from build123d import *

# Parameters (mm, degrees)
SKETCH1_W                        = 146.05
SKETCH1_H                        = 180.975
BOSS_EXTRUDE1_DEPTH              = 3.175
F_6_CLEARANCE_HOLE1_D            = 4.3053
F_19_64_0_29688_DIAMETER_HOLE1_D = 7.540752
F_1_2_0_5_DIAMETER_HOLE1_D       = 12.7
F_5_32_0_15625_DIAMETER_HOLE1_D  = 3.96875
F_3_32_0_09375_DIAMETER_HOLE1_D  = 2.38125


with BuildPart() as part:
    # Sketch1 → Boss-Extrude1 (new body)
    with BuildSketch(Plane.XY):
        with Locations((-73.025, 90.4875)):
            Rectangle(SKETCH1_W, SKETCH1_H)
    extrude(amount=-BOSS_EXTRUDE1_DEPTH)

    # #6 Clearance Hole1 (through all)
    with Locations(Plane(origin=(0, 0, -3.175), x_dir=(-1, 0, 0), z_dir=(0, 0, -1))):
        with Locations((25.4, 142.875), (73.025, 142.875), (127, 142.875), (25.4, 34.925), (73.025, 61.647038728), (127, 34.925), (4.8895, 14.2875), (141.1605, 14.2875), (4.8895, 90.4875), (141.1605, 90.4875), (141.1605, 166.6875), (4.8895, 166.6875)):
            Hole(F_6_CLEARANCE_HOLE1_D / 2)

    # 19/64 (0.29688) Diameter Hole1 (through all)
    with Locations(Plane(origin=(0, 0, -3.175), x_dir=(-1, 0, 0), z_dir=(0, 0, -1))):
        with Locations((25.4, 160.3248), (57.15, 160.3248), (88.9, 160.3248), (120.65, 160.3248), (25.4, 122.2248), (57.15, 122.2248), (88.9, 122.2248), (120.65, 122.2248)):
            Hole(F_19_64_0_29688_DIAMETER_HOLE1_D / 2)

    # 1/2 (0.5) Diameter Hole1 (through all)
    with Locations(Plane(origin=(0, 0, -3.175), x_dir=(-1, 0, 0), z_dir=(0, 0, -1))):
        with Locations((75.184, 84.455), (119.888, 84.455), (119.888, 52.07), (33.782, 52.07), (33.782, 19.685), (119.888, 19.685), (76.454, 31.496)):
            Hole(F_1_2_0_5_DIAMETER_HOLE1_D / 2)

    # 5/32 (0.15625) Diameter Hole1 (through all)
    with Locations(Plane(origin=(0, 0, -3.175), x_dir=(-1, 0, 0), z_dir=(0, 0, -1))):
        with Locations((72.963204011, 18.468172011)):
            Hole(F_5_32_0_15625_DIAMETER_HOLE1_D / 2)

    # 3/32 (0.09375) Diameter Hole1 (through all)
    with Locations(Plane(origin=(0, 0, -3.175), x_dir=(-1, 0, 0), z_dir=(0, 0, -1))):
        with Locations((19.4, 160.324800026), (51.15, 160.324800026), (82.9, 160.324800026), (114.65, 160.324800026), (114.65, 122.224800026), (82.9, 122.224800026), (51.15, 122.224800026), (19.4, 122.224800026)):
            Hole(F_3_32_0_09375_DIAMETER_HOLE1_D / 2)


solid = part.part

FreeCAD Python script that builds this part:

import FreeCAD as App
import Part
import Sketcher

V = App.Vector
Q = App.Units.Quantity


def add_polygon(sketch, points):
    """Adds a closed chain of lines whose ends are joined by coincident constraints."""
    first, n = sketch.GeometryCount, len(points)
    for a, b in zip(points, points[1:] + points[:1]):
        sketch.addGeometry(Part.LineSegment(App.Vector(*a, 0), App.Vector(*b, 0)), False)
    for i in range(n):
        sketch.addConstraint(Sketcher.Constraint("Coincident", first + i, 2, first + (i + 1) % n, 1))

doc = App.newDocument("Part")
body = doc.addObject("PartDesign::Body", "Body")

# Sketch on XY plane
sketch1 = doc.addObject("Sketcher::SketchObject", "Sketch")
body.addObject(sketch1)
sketch1.AttachmentSupport = (doc.XY_Plane, [""])
sketch1.MapMode = "FlatFace"
add_polygon(sketch1, [(-146.05, 180.975), (-146.05, 0), (0, 0), (0, 180.975)])  # lines 0-3
sketch1.addConstraint([
    Sketcher.Constraint("Vertical", 0),
    Sketcher.Constraint("Horizontal", 1),
    Sketcher.Constraint("Vertical", 2),
    Sketcher.Constraint("Horizontal", 3),
    Sketcher.Constraint("Coincident", 1, 2, -1, 1),
    Sketcher.Constraint("DistanceX", 1, 1, 1, 2, Q("5.75 in")),
    Sketcher.Constraint("DistanceY", 0, 2, 0, 1, Q("7.125 in")),
])
pad1 = doc.addObject("PartDesign::Pad", "Pad")
body.addObject(pad1)
pad1.Profile = sketch1
pad1.Length = Q("0.125 in")
pad1.Reversed = True

# Sketch on XY plane
sketch2 = doc.addObject("Sketcher::SketchObject", "Sketch001")
body.addObject(sketch2)
sketch2.AttachmentSupport = (doc.XY_Plane, [""])
sketch2.MapMode = "FlatFace"
sketch2.AttachmentOffset = App.Placement(V(0, 0, -0.125 * 25.4), App.Rotation())
sketch2.addGeometry([
    Part.Circle(V(-25.4, 142.875, 0), V(0, 0, 1), 2.15265),  # 0
    Part.Circle(V(-73.025, 142.875, 0), V(0, 0, 1), 2.15265),  # 1
    Part.Circle(V(-127, 142.875, 0), V(0, 0, 1), 2.15265),  # 2
    Part.Circle(V(-25.4, 34.925, 0), V(0, 0, 1), 2.15265),  # 3
    Part.Circle(V(-73.025, 61.647039, 0), V(0, 0, 1), 2.15265),  # 4
    Part.Circle(V(-127, 34.925, 0), V(0, 0, 1), 2.15265),  # 5
    Part.Circle(V(-4.8895, 14.2875, 0), V(0, 0, 1), 2.15265),  # 6
    Part.Circle(V(-141.1605, 14.2875, 0), V(0, 0, 1), 2.15265),  # 7
    Part.Circle(V(-4.8895, 90.4875, 0), V(0, 0, 1), 2.15265),  # 8
    Part.Circle(V(-141.1605, 90.4875, 0), V(0, 0, 1), 2.15265),  # 9
    Part.Circle(V(-141.1605, 166.6875, 0), V(0, 0, 1), 2.15265),  # 10
    Part.Circle(V(-4.8895, 166.6875, 0), V(0, 0, 1), 2.15265),  # 11
], False)
sketch2.addConstraint([
    Sketcher.Constraint("Equal", 0, 1),
    Sketcher.Constraint("Equal", 1, 2),
    Sketcher.Constraint("Equal", 2, 3),
    Sketcher.Constraint("Equal", 3, 4),
    Sketcher.Constraint("Equal", 4, 5),
    Sketcher.Constraint("Equal", 5, 6),
    Sketcher.Constraint("Equal", 6, 7),
    Sketcher.Constraint("Equal", 7, 8),
    Sketcher.Constraint("Equal", 8, 9),
    Sketcher.Constraint("Equal", 9, 10),
    Sketcher.Constraint("Equal", 10, 11),
    Sketcher.Constraint("Horizontal", 0, 3, 1, 3),
    Sketcher.Constraint("Horizontal", 1, 3, 2, 3),
    Sketcher.Constraint("Horizontal", 3, 3, 5, 3),
    Sketcher.Constraint("Horizontal", 6, 3, 7, 3),
    Sketcher.Constraint("Horizontal", 8, 3, 9, 3),
    Sketcher.Constraint("Horizontal", 10, 3, 11, 3),
    Sketcher.Constraint("Vertical", 0, 3, 3, 3),
    Sketcher.Constraint("Vertical", 1, 3, 4, 3),
    Sketcher.Constraint("Vertical", 2, 3, 5, 3),
    Sketcher.Constraint("Vertical", 6, 3, 8, 3),
    Sketcher.Constraint("Vertical", 7, 3, 9, 3),
    Sketcher.Constraint("Vertical", 9, 3, 10, 3),
    Sketcher.Constraint("Vertical", 8, 3, 11, 3),
    Sketcher.Constraint("DistanceX", 0, 3, -1, 1, Q("1 in")),
    Sketcher.Constraint("DistanceX", 2, 3, -1, 1, Q("5 in")),
    Sketcher.Constraint("DistanceY", 6, 3, 8, 3, Q("3 in")),
    Sketcher.Constraint("DistanceY", 9, 3, 10, 3, Q("3 in")),
    Sketcher.Constraint("Diameter", 0, Q("0.1695 in")),
    Sketcher.Constraint("DistanceY", 3, 3, 0, 3, Q("4.25 in")),
    Sketcher.Constraint("DistanceY", -1, 1, 0, 3, Q("5.625 in")),
    Sketcher.Constraint("DistanceX", 1, 3, -1, 1, Q("2.875 in")),
    Sketcher.Constraint("DistanceY", -1, 1, 6, 3, Q("0.5625 in")),
    Sketcher.Constraint("DistanceX", 7, 3, 6, 3, Q("5.365 in")),
    Sketcher.Constraint("DistanceX", 6, 3, -1, 1, Q("0.1925 in")),
    Sketcher.Constraint("DistanceY", -1, 1, 4, 3, Q("61.647039 mm")),
])
doc.recompute()
hole = doc.addObject("PartDesign::Hole", "Hole")
body.addObject(hole)
hole.Profile = sketch2
hole.ThreadType = "None"
hole.Diameter = Q("0.1695 in")
hole.DepthType = "ThroughAll"
hole.Reversed = True

# Sketch on XY plane
sketch3 = doc.addObject("Sketcher::SketchObject", "Sketch002")
body.addObject(sketch3)
sketch3.AttachmentSupport = (doc.XY_Plane, [""])
sketch3.MapMode = "FlatFace"
sketch3.AttachmentOffset = App.Placement(V(0, 0, -0.125 * 25.4), App.Rotation())
sketch3.addGeometry([
    Part.Circle(V(-25.4, 160.3248, 0), V(0, 0, 1), 3.770376),  # 0
    Part.Circle(V(-57.15, 160.3248, 0), V(0, 0, 1), 3.770376),  # 1
    Part.Circle(V(-88.9, 160.3248, 0), V(0, 0, 1), 3.770376),  # 2
    Part.Circle(V(-120.65, 160.3248, 0), V(0, 0, 1), 3.770376),  # 3
    Part.Circle(V(-25.4, 122.2248, 0), V(0, 0, 1), 3.770376),  # 4
    Part.Circle(V(-57.15, 122.2248, 0), V(0, 0, 1), 3.770376),  # 5
    Part.Circle(V(-88.9, 122.2248, 0), V(0, 0, 1), 3.770376),  # 6
    Part.Circle(V(-120.65, 122.2248, 0), V(0, 0, 1), 3.770376),  # 7
], False)
sketch3.addConstraint([
    Sketcher.Constraint("Equal", 0, 1),
    Sketcher.Constraint("Equal", 1, 2),
    Sketcher.Constraint("Equal", 2, 3),
    Sketcher.Constraint("Equal", 3, 4),
    Sketcher.Constraint("Equal", 4, 5),
    Sketcher.Constraint("Equal", 5, 6),
    Sketcher.Constraint("Equal", 6, 7),
    Sketcher.Constraint("Horizontal", 0, 3, 1, 3),
    Sketcher.Constraint("Horizontal", 1, 3, 2, 3),
    Sketcher.Constraint("Horizontal", 2, 3, 3, 3),
    Sketcher.Constraint("Horizontal", 4, 3, 5, 3),
    Sketcher.Constraint("Horizontal", 5, 3, 6, 3),
    Sketcher.Constraint("Horizontal", 6, 3, 7, 3),
    Sketcher.Constraint("Vertical", 0, 3, 4, 3),
    Sketcher.Constraint("Vertical", 1, 3, 5, 3),
    Sketcher.Constraint("Vertical", 2, 3, 6, 3),
    Sketcher.Constraint("Vertical", 3, 3, 7, 3),
    Sketcher.Constraint("DistanceX", 0, 3, -1, 1, Q("1 in")),
    Sketcher.Constraint("DistanceX", 2, 3, -1, 1, Q("3.5 in")),
    Sketcher.Constraint("DistanceX", 3, 3, 1, 3, Q("2.5 in")),
    Sketcher.Constraint("DistanceY", 4, 3, 0, 3, Q("1.5 in")),
    Sketcher.Constraint("DistanceX", 1, 3, -1, 1, Q("2.25 in")),
    Sketcher.Constraint("DistanceY", -1, 1, 0, 3, Q("6.312 in")),
    Sketcher.Constraint("Diameter", 0, Q("7.540752 mm")),
])
doc.recompute()
hole2 = doc.addObject("PartDesign::Hole", "Hole001")
body.addObject(hole2)
hole2.Profile = sketch3
hole2.ThreadType = "None"
hole2.Diameter = 7.540752
hole2.DepthType = "ThroughAll"
hole2.Reversed = True

# Sketch on XY plane
sketch4 = doc.addObject("Sketcher::SketchObject", "Sketch003")
body.addObject(sketch4)
sketch4.AttachmentSupport = (doc.XY_Plane, [""])
sketch4.MapMode = "FlatFace"
sketch4.AttachmentOffset = App.Placement(V(0, 0, -0.125 * 25.4), App.Rotation())
sketch4.addGeometry([
    Part.Circle(V(-75.184, 84.455, 0), V(0, 0, 1), 6.35),  # 0
    Part.Circle(V(-119.888, 84.455, 0), V(0, 0, 1), 6.35),  # 1
    Part.Circle(V(-119.888, 52.07, 0), V(0, 0, 1), 6.35),  # 2
    Part.Circle(V(-33.782, 52.07, 0), V(0, 0, 1), 6.35),  # 3
    Part.Circle(V(-33.782, 19.685, 0), V(0, 0, 1), 6.35),  # 4
    Part.Circle(V(-119.888, 19.685, 0), V(0, 0, 1), 6.35),  # 5
    Part.Circle(V(-76.454, 31.496, 0), V(0, 0, 1), 6.35),  # 6
], False)
sketch4.addConstraint([
    Sketcher.Constraint("Equal", 0, 1),
    Sketcher.Constraint("Equal", 1, 2),
    Sketcher.Constraint("Equal", 2, 3),
    Sketcher.Constraint("Equal", 3, 4),
    Sketcher.Constraint("Equal", 4, 5),
    Sketcher.Constraint("Equal", 5, 6),
    Sketcher.Constraint("Horizontal", 0, 3, 1, 3),
    Sketcher.Constraint("Horizontal", 2, 3, 3, 3),
    Sketcher.Constraint("Horizontal", 4, 3, 5, 3),
    Sketcher.Constraint("Vertical", 1, 3, 2, 3),
    Sketcher.Constraint("Vertical", 3, 3, 4, 3),
    Sketcher.Constraint("Vertical", 2, 3, 5, 3),
    Sketcher.Constraint("Diameter", 0, Q("0.5 in")),
    Sketcher.Constraint("DistanceX", 0, 3, -1, 1, Q("2.96 in")),
    Sketcher.Constraint("DistanceX", 1, 3, -1, 1, Q("4.72 in")),
    Sketcher.Constraint("DistanceY", -1, 1, 2, 3, Q("2.05 in")),
    Sketcher.Constraint("DistanceX", 3, 3, -1, 1, Q("1.33 in")),
    Sketcher.Constraint("DistanceX", 6, 3, -1, 1, Q("3.01 in")),
    Sketcher.Constraint("DistanceY", -1, 1, 6, 3, Q("1.24 in")),
    Sketcher.Constraint("DistanceY", 4, 3, 0, 3, Q("2.55 in")),
    Sketcher.Constraint("DistanceY", -1, 1, 0, 3, Q("3.325 in")),
])
doc.recompute()
hole3 = doc.addObject("PartDesign::Hole", "Hole002")
body.addObject(hole3)
hole3.Profile = sketch4
hole3.ThreadType = "None"
hole3.Diameter = Q("0.5 in")
hole3.DepthType = "ThroughAll"
hole3.Reversed = True

# Sketch on XY plane
sketch5 = doc.addObject("Sketcher::SketchObject", "Sketch004")
body.addObject(sketch5)
sketch5.AttachmentSupport = (doc.XY_Plane, [""])
sketch5.MapMode = "FlatFace"
sketch5.AttachmentOffset = App.Placement(V(0, 0, -0.125 * 25.4), App.Rotation())
sketch5.addGeometry(Part.Circle(V(-72.963204, 18.468172, 0), V(0, 0, 1), 1.984375), False)
sketch5.addConstraint([
    Sketcher.Constraint("Diameter", 0, Q("0.15625 in")),
    Sketcher.Constraint("DistanceX", 0, 3, -1, 1, Q("72.963204 mm")),
    Sketcher.Constraint("DistanceY", -1, 1, 0, 3, Q("18.468172 mm")),
])
doc.recompute()
hole4 = doc.addObject("PartDesign::Hole", "Hole003")
body.addObject(hole4)
hole4.Profile = sketch5
hole4.ThreadType = "None"
hole4.Diameter = Q("0.15625 in")
hole4.DepthType = "ThroughAll"
hole4.Reversed = True

# Sketch on XY plane
sketch6 = doc.addObject("Sketcher::SketchObject", "Sketch005")
body.addObject(sketch6)
sketch6.AttachmentSupport = (doc.XY_Plane, [""])
sketch6.MapMode = "FlatFace"
sketch6.AttachmentOffset = App.Placement(V(0, 0, -0.125 * 25.4), App.Rotation())
sketch6.addGeometry([
    Part.Circle(V(-19.4, 160.3248, 0), V(0, 0, 1), 1.190625),  # 0
    Part.Circle(V(-51.15, 160.3248, 0), V(0, 0, 1), 1.190625),  # 1
    Part.Circle(V(-82.9, 160.3248, 0), V(0, 0, 1), 1.190625),  # 2
    Part.Circle(V(-114.65, 160.3248, 0), V(0, 0, 1), 1.190625),  # 3
    Part.Circle(V(-114.65, 122.2248, 0), V(0, 0, 1), 1.190625),  # 4
    Part.Circle(V(-82.9, 122.2248, 0), V(0, 0, 1), 1.190625),  # 5
    Part.Circle(V(-51.15, 122.2248, 0), V(0, 0, 1), 1.190625),  # 6
    Part.Circle(V(-19.4, 122.2248, 0), V(0, 0, 1), 1.190625),  # 7
], False)
sketch6.addConstraint([
    Sketcher.Constraint("Equal", 0, 1),
    Sketcher.Constraint("Equal", 1, 2),
    Sketcher.Constraint("Equal", 2, 3),
    Sketcher.Constraint("Equal", 3, 4),
    Sketcher.Constraint("Equal", 4, 5),
    Sketcher.Constraint("Equal", 5, 6),
    Sketcher.Constraint("Equal", 6, 7),
    Sketcher.Constraint("Horizontal", 0, 3, 1, 3),
    Sketcher.Constraint("Horizontal", 1, 3, 2, 3),
    Sketcher.Constraint("Horizontal", 2, 3, 3, 3),
    Sketcher.Constraint("Horizontal", 4, 3, 5, 3),
    Sketcher.Constraint("Horizontal", 5, 3, 6, 3),
    Sketcher.Constraint("Horizontal", 6, 3, 7, 3),
    Sketcher.Constraint("Vertical", 3, 3, 4, 3),
    Sketcher.Constraint("Vertical", 2, 3, 5, 3),
    Sketcher.Constraint("Vertical", 1, 3, 6, 3),
    Sketcher.Constraint("Vertical", 0, 3, 7, 3),
    Sketcher.Constraint("Diameter", 0, Q("0.09375 in")),
    Sketcher.Constraint("DistanceX", 2, 3, 0, 3, Q("2.5 in")),
    Sketcher.Constraint("DistanceX", 3, 3, 1, 3, Q("2.5 in")),
    Sketcher.Constraint("DistanceY", 4, 3, 3, 3, Q("1.5 in")),
    Sketcher.Constraint("DistanceX", 1, 3, 0, 3, Q("1.25 in")),
    Sketcher.Constraint("DistanceY", -1, 1, 0, 3, Q("6.312 in")),
    Sketcher.Constraint("DistanceX", 0, 3, -1, 1, Q("19.4 mm")),
])
doc.recompute()
hole5 = doc.addObject("PartDesign::Hole", "Hole004")
body.addObject(hole5)
hole5.Profile = sketch6
hole5.ThreadType = "None"
hole5.Diameter = Q("0.09375 in")
hole5.DepthType = "ThroughAll"
hole5.Reversed = True

doc.recompute()
